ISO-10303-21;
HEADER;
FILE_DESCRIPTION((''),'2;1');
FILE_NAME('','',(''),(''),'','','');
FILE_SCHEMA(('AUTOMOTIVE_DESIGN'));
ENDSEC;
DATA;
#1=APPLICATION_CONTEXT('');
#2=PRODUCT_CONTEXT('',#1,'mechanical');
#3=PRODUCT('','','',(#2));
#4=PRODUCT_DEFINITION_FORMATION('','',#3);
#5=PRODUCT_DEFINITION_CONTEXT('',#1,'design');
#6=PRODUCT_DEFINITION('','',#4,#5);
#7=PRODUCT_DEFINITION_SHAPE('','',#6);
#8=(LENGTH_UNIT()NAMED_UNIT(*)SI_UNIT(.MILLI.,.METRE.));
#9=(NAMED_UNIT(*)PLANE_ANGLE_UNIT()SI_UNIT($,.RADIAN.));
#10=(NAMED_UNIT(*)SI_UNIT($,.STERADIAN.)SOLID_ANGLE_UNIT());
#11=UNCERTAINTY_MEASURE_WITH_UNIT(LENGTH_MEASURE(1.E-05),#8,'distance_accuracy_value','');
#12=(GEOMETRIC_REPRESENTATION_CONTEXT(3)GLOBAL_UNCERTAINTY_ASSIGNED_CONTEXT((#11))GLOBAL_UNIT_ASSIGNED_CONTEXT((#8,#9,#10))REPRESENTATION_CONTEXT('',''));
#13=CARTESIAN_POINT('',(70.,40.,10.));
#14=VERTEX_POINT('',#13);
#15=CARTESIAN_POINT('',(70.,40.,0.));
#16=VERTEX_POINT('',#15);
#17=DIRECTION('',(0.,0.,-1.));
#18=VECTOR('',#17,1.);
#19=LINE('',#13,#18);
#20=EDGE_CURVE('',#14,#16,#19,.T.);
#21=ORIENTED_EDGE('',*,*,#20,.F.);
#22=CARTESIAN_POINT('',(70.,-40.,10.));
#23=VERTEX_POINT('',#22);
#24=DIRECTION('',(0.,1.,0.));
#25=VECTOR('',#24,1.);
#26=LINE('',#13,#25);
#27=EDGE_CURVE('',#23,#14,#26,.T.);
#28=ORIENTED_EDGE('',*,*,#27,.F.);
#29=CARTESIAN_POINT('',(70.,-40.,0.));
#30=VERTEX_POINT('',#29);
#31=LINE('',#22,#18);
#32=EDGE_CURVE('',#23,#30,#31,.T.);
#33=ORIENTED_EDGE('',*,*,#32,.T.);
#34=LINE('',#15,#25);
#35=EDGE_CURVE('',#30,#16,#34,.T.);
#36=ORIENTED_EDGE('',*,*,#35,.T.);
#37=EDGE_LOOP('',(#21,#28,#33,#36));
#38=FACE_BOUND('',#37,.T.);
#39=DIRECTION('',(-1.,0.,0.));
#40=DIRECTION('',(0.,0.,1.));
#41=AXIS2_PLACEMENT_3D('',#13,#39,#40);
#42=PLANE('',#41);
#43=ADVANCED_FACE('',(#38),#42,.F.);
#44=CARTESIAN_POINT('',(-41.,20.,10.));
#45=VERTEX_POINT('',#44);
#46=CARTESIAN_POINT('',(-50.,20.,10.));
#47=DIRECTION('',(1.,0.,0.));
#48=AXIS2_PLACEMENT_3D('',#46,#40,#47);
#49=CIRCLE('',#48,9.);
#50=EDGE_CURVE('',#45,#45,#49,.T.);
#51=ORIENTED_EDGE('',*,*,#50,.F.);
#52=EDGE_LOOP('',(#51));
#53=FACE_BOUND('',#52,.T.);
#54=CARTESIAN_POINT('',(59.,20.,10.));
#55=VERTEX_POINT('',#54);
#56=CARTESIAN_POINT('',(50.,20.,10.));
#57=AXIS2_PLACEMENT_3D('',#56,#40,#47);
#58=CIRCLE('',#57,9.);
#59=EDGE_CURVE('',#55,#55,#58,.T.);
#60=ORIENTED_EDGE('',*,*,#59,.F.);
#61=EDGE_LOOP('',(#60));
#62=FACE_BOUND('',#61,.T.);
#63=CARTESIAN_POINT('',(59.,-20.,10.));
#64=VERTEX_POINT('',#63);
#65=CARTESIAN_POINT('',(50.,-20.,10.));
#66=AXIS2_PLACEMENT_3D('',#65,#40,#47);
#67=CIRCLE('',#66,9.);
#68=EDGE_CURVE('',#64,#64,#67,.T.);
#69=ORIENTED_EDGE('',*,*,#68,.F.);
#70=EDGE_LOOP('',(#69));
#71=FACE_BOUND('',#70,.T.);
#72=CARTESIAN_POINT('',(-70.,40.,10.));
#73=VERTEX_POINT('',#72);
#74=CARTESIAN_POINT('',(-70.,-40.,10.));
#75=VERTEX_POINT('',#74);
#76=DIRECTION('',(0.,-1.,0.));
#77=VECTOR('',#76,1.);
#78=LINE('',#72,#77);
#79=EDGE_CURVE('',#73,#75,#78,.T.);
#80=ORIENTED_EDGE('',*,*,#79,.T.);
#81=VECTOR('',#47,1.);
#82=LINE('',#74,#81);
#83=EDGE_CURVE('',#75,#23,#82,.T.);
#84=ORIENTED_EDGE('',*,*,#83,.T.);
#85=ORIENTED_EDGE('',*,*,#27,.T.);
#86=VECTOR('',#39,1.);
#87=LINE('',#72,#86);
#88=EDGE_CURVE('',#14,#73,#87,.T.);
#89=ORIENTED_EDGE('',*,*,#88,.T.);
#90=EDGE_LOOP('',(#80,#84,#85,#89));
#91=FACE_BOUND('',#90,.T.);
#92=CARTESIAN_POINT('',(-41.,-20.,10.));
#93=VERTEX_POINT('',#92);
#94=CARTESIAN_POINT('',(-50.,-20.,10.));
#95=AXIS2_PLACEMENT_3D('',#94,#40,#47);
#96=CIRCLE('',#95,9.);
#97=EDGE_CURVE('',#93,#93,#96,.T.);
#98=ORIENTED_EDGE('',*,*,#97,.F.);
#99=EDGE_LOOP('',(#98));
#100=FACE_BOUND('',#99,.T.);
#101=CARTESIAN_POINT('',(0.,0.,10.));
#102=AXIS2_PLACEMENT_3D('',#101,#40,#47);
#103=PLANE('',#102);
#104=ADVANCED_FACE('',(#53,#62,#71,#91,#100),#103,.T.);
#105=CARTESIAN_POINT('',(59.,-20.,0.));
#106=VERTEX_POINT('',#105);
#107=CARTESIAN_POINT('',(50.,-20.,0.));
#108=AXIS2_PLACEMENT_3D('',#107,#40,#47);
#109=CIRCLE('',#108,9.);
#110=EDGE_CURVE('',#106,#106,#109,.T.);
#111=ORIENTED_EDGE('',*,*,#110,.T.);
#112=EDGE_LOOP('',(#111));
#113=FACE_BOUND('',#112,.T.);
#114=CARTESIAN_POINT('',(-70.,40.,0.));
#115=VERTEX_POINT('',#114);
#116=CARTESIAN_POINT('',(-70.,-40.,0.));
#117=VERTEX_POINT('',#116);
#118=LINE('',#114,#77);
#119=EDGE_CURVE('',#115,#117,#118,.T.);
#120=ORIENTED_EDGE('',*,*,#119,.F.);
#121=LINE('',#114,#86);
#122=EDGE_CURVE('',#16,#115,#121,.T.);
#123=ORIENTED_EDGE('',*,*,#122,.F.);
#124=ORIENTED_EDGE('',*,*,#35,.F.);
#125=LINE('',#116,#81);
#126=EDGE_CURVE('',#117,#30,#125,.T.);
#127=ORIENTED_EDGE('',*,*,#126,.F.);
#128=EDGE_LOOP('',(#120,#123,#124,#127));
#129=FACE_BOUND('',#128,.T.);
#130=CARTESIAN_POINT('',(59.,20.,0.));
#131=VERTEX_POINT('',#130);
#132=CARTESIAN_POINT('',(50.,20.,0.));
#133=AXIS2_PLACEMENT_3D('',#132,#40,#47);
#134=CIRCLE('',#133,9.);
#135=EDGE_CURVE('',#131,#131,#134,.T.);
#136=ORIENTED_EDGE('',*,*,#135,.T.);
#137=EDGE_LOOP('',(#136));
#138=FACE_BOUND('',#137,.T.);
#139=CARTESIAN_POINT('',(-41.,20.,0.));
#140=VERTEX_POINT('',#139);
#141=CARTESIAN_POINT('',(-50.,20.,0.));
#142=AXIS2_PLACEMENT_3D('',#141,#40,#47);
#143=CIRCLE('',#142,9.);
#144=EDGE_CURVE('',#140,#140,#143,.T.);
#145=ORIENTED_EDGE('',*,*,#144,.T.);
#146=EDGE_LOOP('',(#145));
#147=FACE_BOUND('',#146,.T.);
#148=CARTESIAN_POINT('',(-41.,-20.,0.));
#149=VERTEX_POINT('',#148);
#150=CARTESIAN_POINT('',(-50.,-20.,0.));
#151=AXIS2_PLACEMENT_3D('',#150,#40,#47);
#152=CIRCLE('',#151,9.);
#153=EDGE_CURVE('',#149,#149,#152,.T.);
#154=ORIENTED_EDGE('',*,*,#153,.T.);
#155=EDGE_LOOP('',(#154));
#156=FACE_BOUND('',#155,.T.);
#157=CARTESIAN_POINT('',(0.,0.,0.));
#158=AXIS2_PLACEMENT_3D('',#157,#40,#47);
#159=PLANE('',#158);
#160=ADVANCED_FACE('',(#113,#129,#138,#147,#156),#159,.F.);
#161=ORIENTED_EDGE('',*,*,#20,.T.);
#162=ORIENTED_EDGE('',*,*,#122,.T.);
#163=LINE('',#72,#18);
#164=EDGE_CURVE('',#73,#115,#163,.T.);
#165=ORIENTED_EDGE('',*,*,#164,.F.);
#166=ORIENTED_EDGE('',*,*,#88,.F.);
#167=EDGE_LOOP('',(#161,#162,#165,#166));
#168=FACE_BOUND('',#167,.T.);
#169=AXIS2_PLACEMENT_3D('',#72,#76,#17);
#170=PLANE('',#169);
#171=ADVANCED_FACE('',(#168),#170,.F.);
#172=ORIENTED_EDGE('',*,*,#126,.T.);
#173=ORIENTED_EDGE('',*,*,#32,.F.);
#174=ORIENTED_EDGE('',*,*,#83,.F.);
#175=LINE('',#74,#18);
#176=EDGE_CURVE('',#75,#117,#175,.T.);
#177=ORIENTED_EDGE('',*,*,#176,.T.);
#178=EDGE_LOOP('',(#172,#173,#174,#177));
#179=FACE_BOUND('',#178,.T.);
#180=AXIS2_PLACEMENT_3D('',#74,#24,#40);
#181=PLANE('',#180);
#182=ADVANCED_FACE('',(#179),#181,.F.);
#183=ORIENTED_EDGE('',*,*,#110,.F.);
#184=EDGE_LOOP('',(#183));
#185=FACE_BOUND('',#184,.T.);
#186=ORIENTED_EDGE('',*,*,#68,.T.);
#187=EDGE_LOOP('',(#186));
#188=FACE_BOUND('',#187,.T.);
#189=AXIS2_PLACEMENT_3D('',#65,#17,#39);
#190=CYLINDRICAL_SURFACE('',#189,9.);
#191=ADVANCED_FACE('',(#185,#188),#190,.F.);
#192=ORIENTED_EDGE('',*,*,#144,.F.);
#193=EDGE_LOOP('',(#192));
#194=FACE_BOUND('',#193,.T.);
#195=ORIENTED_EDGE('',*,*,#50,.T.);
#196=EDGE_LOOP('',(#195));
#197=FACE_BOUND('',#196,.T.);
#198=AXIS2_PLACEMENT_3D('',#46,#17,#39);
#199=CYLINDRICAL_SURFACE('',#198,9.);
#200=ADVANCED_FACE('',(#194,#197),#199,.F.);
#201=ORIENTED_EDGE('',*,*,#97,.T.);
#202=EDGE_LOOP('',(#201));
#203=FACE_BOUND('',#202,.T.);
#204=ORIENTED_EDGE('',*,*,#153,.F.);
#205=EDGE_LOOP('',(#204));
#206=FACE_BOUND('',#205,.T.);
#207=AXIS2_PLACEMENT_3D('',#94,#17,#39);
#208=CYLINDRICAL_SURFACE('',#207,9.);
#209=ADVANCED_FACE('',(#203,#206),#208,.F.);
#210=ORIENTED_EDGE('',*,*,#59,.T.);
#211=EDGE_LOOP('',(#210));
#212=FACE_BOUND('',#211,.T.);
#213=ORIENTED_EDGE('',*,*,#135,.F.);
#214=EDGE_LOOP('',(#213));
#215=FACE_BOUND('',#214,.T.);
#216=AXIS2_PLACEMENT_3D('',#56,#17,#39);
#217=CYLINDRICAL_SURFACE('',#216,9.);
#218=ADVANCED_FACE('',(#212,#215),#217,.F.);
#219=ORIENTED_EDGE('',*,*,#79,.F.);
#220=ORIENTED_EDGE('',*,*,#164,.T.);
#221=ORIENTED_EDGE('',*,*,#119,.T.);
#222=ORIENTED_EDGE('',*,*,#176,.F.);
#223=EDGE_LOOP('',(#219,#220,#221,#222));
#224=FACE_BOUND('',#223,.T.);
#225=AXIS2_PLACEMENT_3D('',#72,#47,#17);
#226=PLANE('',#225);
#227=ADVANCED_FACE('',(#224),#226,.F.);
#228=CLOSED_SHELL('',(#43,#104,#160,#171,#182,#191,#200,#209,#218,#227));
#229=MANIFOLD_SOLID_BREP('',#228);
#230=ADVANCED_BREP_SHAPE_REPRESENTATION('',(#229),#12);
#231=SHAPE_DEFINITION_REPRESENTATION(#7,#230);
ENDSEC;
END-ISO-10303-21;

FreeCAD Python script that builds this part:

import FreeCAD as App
import Part
import Sketcher

V = App.Vector

doc = App.newDocument("Part")
body = doc.addObject("PartDesign::Body", "Body")

# Sketch on XY plane
sketch1 = body.newObject("Sketcher::SketchObject", "Sketch")
sketch1.AttachmentSupport = (doc.getObject("XY_Plane"), [""])
sketch1.MapMode = "FlatFace"
sketch1.addGeometry(Part.LineSegment(V(-70, 40, 0), V(-70, -40, 0)), False)
sketch1.addGeometry(Part.LineSegment(V(-70, -40, 0), V(70, -40, 0)), False)
sketch1.addGeometry(Part.LineSegment(V(70, -40, 0), V(70, 40, 0)), False)
sketch1.addGeometry(Part.LineSegment(V(70, 40, 0), V(-70, 40, 0)), False)
sketch1.addGeometry(Part.Circle(V(-50, -20, 0), V(0, 0, 1), 9), False)
sketch1.addGeometry(Part.Circle(V(50, -20, 0), V(0, 0, 1), 9), False)
sketch1.addGeometry(Part.Circle(V(-50, 20, 0), V(0, 0, 1), 9), False)
sketch1.addGeometry(Part.Circle(V(50, 20, 0), V(0, 0, 1), 9), False)
sketch1.addConstraint(Sketcher.Constraint("Coincident", 0, 2, 1, 1))
sketch1.addConstraint(Sketcher.Constraint("Coincident", 1, 2, 2, 1))
sketch1.addConstraint(Sketcher.Constraint("Coincident", 2, 2, 3, 1))
sketch1.addConstraint(Sketcher.Constraint("Coincident", 3, 2, 0, 1))
sketch1.addConstraint(Sketcher.Constraint("Vertical", 0))
sketch1.addConstraint(Sketcher.Constraint("Horizontal", 1))
sketch1.addConstraint(Sketcher.Constraint("Vertical", 2))
sketch1.addConstraint(Sketcher.Constraint("Horizontal", 3))
sketch1.addConstraint(Sketcher.Constraint("Equal", 4, 5))
sketch1.addConstraint(Sketcher.Constraint("Equal", 5, 6))
sketch1.addConstraint(Sketcher.Constraint("Equal", 6, 7))
sketch1.addConstraint(Sketcher.Constraint("Symmetric", 5, 3, 6, 3, -1, 1))
sketch1.addConstraint(Sketcher.Constraint("Symmetric", 4, 3, 7, 3, -1, 1))
sketch1.addConstraint(Sketcher.Constraint("Symmetric", 0, 2, 2, 2, -1, 1))
sketch1.addConstraint(Sketcher.Constraint("Symmetric", 4, 3, 5, 3, -2))
sketch1.addConstraint(Sketcher.Constraint("Diameter", 4, 18.0))
sketch1.addConstraint(Sketcher.Constraint("DistanceX", 1, 1, 1, 2, 140.0))
sketch1.addConstraint(Sketcher.Constraint("DistanceY", 0, 2, 0, 1, 80.0))
sketch1.addConstraint(Sketcher.Constraint("DistanceX", 4, 3, -1, 1, 50.0))
sketch1.addConstraint(Sketcher.Constraint("DistanceY", 4, 3, -1, 1, 20.0))
pad1 = body.newObject("PartDesign::Pad", "Pad")
pad1.Profile = sketch1
pad1.Length = 10

doc.recompute()
